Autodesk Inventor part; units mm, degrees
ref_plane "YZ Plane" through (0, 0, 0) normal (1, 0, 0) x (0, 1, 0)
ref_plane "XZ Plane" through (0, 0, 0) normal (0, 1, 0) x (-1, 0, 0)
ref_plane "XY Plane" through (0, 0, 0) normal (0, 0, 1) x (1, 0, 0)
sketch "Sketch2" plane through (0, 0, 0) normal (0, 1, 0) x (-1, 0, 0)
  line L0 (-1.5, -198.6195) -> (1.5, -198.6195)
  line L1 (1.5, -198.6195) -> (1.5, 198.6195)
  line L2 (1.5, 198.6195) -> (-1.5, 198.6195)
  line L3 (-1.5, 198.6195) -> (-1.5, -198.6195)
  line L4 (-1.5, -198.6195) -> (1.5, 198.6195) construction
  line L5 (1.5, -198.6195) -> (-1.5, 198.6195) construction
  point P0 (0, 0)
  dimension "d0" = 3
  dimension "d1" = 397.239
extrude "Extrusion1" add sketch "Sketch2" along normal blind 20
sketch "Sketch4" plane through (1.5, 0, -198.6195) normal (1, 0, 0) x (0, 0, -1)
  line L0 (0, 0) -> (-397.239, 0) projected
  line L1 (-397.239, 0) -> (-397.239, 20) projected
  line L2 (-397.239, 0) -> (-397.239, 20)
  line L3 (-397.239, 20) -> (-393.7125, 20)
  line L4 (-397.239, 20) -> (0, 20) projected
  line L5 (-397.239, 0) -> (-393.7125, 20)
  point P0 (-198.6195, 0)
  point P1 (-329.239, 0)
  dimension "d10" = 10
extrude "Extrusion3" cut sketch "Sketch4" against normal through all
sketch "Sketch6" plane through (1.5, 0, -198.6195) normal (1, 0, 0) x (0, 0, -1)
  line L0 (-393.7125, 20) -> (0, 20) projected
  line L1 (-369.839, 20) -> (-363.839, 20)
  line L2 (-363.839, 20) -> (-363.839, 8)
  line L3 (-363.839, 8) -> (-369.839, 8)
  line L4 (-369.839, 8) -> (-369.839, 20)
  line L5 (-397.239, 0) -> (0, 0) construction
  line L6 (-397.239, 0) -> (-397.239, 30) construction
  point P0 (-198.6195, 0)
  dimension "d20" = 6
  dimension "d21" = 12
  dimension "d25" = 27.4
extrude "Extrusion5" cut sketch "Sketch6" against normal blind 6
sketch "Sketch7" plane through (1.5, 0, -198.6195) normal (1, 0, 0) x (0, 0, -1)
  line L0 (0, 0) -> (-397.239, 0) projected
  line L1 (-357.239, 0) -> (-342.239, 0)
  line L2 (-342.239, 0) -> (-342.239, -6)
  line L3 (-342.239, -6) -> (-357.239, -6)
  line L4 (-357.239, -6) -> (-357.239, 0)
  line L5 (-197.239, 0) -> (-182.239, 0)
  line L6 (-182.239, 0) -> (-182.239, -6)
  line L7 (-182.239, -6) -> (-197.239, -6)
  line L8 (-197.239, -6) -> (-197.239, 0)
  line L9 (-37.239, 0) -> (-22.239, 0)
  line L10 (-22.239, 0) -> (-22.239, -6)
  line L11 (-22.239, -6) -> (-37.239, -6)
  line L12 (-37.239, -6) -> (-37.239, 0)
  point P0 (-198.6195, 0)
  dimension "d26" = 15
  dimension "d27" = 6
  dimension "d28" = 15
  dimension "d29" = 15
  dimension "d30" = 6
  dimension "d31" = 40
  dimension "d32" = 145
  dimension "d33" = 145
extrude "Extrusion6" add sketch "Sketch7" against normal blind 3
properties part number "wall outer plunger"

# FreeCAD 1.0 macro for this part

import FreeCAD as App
import Part
import Sketcher
from FreeCAD import Vector
Q = App.Units.Quantity

doc = App.newDocument("Part")
params = doc.addObject("Spreadsheet::Sheet", "Params")
for row, (alias, value) in enumerate([
    ("sketch1_width", "3 mm"),
    ("pad1_length", "20 mm"),
    ("sketch2_width", "20 mm"),
    ("sketch3_width", "12 mm"),
    ("sketch3_height", "6 mm"),
    ("pocket2_length", "6 mm"),
    ("sketch4_width", "6 mm"),
    ("sketch4_height", "15 mm"),
    ("pad2_length", "3 mm"),
], start=1):
    params.set(f"A{row}", alias)
    params.set(f"B{row}", "=" + value)
    params.setAlias(f"B{row}", alias)

body = doc.addObject("PartDesign::Body", "Body")

# Sketch on XZ plane
sketch1 = body.newObject("Sketcher::SketchObject", "Sketch")
sketch1.AttachmentSupport = (doc.getObject("XZ_Plane"), [""])
sketch1.MapMode = "FlatFace"
sketch1.addGeometry([
    Part.LineSegment(Vector(1.5, 198.6, 0), Vector(1.5, -198.6, 0)),
    Part.LineSegment(Vector(1.5, -198.6, 0), Vector(-1.5, -198.6, 0)),
    Part.LineSegment(Vector(-1.5, -198.6, 0), Vector(-1.5, 198.6, 0)),
    Part.LineSegment(Vector(-1.5, 198.6, 0), Vector(1.5, 198.6, 0)),
], False)
sketch1.addConstraint([
    Sketcher.Constraint("Coincident", 0, 2, 1, 1),
    Sketcher.Constraint("Coincident", 1, 2, 2, 1),
    Sketcher.Constraint("Coincident", 2, 2, 3, 1),
    Sketcher.Constraint("Coincident", 3, 2, 0, 1),
    Sketcher.Constraint("Vertical", 0),
    Sketcher.Constraint("Horizontal", 1),
    Sketcher.Constraint("Vertical", 2),
    Sketcher.Constraint("Horizontal", 3),
    Sketcher.Constraint("Symmetric", 0, 2, 2, 2, -1, 1),
    Sketcher.Constraint("DistanceX", 1, 2, 1, 1, Q("3 mm")),
    Sketcher.Constraint("DistanceY", 0, 2, 0, 1, Q("397.239 mm")),
])
sketch1.setExpression("Constraints[9]", "Params.sketch1_width")
pad1 = body.newObject("PartDesign::Pad", "Pad")
pad1.Profile = sketch1
pad1.setExpression("Length", "Params.pad1_length")
pad1.Reversed = True

# Sketch on YZ plane
sketch2 = body.newObject("Sketcher::SketchObject", "Sketch001")
sketch2.AttachmentSupport = (doc.getObject("YZ_Plane"), [""])
sketch2.MapMode = "FlatFace"
sketch2.AttachmentOffset = App.Placement(Vector(0, 0, 1.5), App.Rotation())
sketch2.addGeometry([
    Part.LineSegment(Vector(20, 198.6, 0), Vector(0, 198.6, 0)),
    Part.LineSegment(Vector(0, 198.6, 0), Vector(20, 195.1, 0)),
    Part.LineSegment(Vector(20, 195.1, 0), Vector(20, 198.6, 0)),
], False)
sketch2.addConstraint([
    Sketcher.Constraint("Coincident", 0, 2, 1, 1),
    Sketcher.Constraint("Coincident", 1, 2, 2, 1),
    Sketcher.Constraint("Coincident", 2, 2, 0, 1),
    Sketcher.Constraint("Horizontal", 0),
    Sketcher.Constraint("Vertical", 2),
    Sketcher.Constraint("PointOnObject", 0, 2, -2),
    Sketcher.Constraint("Angle", 1, Q("-10 deg")),
    Sketcher.Constraint("DistanceX", 0, 2, 0, 1, Q("20 mm")),
    Sketcher.Constraint("DistanceY", -1, 1, 1, 2, Q("195.093 mm")),
])
sketch2.setExpression("Constraints[7]", "Params.sketch2_width")
pocket1 = body.newObject("PartDesign::Pocket", "Pocket")
pocket1.Profile = sketch2
pocket1.Type = "ThroughAll"

# Sketch on YZ plane
sketch3 = body.newObject("Sketcher::SketchObject", "Sketch002")
sketch3.AttachmentSupport = (doc.getObject("YZ_Plane"), [""])
sketch3.MapMode = "FlatFace"
sketch3.AttachmentOffset = App.Placement(Vector(0, 0, 1.5), App.Rotation())
sketch3.addGeometry([
    Part.LineSegment(Vector(20, 165, 0), Vector(20, 171, 0)),
    Part.LineSegment(Vector(20, 171, 0), Vector(8, 171, 0)),
    Part.LineSegment(Vector(8, 171, 0), Vector(8, 165, 0)),
    Part.LineSegment(Vector(8, 165, 0), Vector(20, 165, 0)),
], False)
sketch3.addConstraint([
    Sketcher.Constraint("Coincident", 0, 2, 1, 1),
    Sketcher.Constraint("Coincident", 1, 2, 2, 1),
    Sketcher.Constraint("Coincident", 2, 2, 3, 1),
    Sketcher.Constraint("Coincident", 3, 2, 0, 1),
    Sketcher.Constraint("Vertical", 0),
    Sketcher.Constraint("Horizontal", 1),
    Sketcher.Constraint("Vertical", 2),
    Sketcher.Constraint("Horizontal", 3),
    Sketcher.Constraint("DistanceX", 1, 2, 1, 1, Q("12 mm")),
    Sketcher.Constraint("DistanceY", 0, 1, 0, 2, Q("6 mm")),
    Sketcher.Constraint("DistanceX", -1, 1, 0, 2, Q("20 mm")),
    Sketcher.Constraint("DistanceY", -1, 1, 0, 2, Q("171.2195 mm")),
])
sketch3.setExpression("Constraints[8]", "Params.sketch3_width")
sketch3.setExpression("Constraints[9]", "Params.sketch3_height")
pocket2 = body.newObject("PartDesign::Pocket", "Pocket001")
pocket2.Profile = sketch3
pocket2.setExpression("Length", "Params.pocket2_length")

# Sketch on YZ plane
sketch4 = body.newObject("Sketcher::SketchObject", "Sketch003")
sketch4.AttachmentSupport = (doc.getObject("YZ_Plane"), [""])
sketch4.MapMode = "FlatFace"
sketch4.AttachmentOffset = App.Placement(Vector(0, 0, 1.5), App.Rotation())
sketch4.addGeometry([
    Part.LineSegment(Vector(-6, -176, 0), Vector(0, -176, 0)),  # 0
    Part.LineSegment(Vector(0, -176, 0), Vector(0, -161, 0)),  # 1
    Part.LineSegment(Vector(0, -161, 0), Vector(-6, -161, 0)),  # 2
    Part.LineSegment(Vector(-6, -161, 0), Vector(-6, -176, 0)),  # 3
    Part.LineSegment(Vector(-6, 144, 0), Vector(0, 144, 0)),  # 4
    Part.LineSegment(Vector(0, 144, 0), Vector(0, 159, 0)),  # 5
    Part.LineSegment(Vector(0, 159, 0), Vector(-6, 159, 0)),  # 6
    Part.LineSegment(Vector(-6, 159, 0), Vector(-6, 144, 0)),  # 7
    Part.LineSegment(Vector(-6, -16, 0), Vector(0, -16, 0)),  # 8
    Part.LineSegment(Vector(0, -16, 0), Vector(0, -1, 0)),  # 9
    Part.LineSegment(Vector(0, -1, 0), Vector(-6, -1, 0)),  # 10
    Part.LineSegment(Vector(-6, -1, 0), Vector(-6, -16, 0)),  # 11
], False)
sketch4.addConstraint([
    Sketcher.Constraint("Coincident", 0, 2, 1, 1),
    Sketcher.Constraint("Coincident", 1, 2, 2, 1),
    Sketcher.Constraint("Coincident", 2, 2, 3, 1),
    Sketcher.Constraint("Coincident", 3, 2, 0, 1),
    Sketcher.Constraint("Coincident", 4, 2, 5, 1),
    Sketcher.Constraint("Coincident", 5, 2, 6, 1),
    Sketcher.Constraint("Coincident", 6, 2, 7, 1),
    Sketcher.Constraint("Coincident", 7, 2, 4, 1),
    Sketcher.Constraint("Coincident", 8, 2, 9, 1),
    Sketcher.Constraint("Coincident", 9, 2, 10, 1),
    Sketcher.Constraint("Coincident", 10, 2, 11, 1),
    Sketcher.Constraint("Coincident", 11, 2, 8, 1),
    Sketcher.Constraint("Horizontal", 0),
    Sketcher.Constraint("Vertical", 1),
    Sketcher.Constraint("Horizontal", 2),
    Sketcher.Constraint("Vertical", 3),
    Sketcher.Constraint("Horizontal", 4),
    Sketcher.Constraint("Vertical", 5),
    Sketcher.Constraint("Horizontal", 6),
    Sketcher.Constraint("Vertical", 7),
    Sketcher.Constraint("Horizontal", 8),
    Sketcher.Constraint("Vertical", 9),
    Sketcher.Constraint("Horizontal", 10),
    Sketcher.Constraint("Vertical", 11),
    Sketcher.Constraint("PointOnObject", 0, 2, -2),
    Sketcher.Constraint("PointOnObject", 4, 2, -2),
    Sketcher.Constraint("PointOnObject", 8, 2, -2),
    Sketcher.Constraint("Vertical", 3, 2, 6, 2),
    Sketcher.Constraint("Vertical", 7, 2, 10, 2),
    Sketcher.Constraint("Equal", 3, 5),
    Sketcher.Constraint("Equal", 7, 9),
    Sketcher.Constraint("DistanceX", 0, 1, 0, 2, Q("6 mm")),
    Sketcher.Constraint("DistanceY", 1, 1, 1, 2, Q("15 mm")),
    Sketcher.Constraint("DistanceY", 1, 2, 8, 2, Q("145 mm")),
    Sketcher.Constraint("DistanceY", 9, 2, 4, 2, Q("145 mm")),
    Sketcher.Constraint("DistanceY", 0, 2, -1, 1, Q("176.3805 mm")),
])
sketch4.setExpression("Constraints[31]", "Params.sketch4_width")
sketch4.setExpression("Constraints[32]", "Params.sketch4_height")
pad2 = body.newObject("PartDesign::Pad", "Pad001")
pad2.Profile = sketch4
pad2.setExpression("Length", "Params.pad2_length")
pad2.Reversed = True

doc.recompute()
